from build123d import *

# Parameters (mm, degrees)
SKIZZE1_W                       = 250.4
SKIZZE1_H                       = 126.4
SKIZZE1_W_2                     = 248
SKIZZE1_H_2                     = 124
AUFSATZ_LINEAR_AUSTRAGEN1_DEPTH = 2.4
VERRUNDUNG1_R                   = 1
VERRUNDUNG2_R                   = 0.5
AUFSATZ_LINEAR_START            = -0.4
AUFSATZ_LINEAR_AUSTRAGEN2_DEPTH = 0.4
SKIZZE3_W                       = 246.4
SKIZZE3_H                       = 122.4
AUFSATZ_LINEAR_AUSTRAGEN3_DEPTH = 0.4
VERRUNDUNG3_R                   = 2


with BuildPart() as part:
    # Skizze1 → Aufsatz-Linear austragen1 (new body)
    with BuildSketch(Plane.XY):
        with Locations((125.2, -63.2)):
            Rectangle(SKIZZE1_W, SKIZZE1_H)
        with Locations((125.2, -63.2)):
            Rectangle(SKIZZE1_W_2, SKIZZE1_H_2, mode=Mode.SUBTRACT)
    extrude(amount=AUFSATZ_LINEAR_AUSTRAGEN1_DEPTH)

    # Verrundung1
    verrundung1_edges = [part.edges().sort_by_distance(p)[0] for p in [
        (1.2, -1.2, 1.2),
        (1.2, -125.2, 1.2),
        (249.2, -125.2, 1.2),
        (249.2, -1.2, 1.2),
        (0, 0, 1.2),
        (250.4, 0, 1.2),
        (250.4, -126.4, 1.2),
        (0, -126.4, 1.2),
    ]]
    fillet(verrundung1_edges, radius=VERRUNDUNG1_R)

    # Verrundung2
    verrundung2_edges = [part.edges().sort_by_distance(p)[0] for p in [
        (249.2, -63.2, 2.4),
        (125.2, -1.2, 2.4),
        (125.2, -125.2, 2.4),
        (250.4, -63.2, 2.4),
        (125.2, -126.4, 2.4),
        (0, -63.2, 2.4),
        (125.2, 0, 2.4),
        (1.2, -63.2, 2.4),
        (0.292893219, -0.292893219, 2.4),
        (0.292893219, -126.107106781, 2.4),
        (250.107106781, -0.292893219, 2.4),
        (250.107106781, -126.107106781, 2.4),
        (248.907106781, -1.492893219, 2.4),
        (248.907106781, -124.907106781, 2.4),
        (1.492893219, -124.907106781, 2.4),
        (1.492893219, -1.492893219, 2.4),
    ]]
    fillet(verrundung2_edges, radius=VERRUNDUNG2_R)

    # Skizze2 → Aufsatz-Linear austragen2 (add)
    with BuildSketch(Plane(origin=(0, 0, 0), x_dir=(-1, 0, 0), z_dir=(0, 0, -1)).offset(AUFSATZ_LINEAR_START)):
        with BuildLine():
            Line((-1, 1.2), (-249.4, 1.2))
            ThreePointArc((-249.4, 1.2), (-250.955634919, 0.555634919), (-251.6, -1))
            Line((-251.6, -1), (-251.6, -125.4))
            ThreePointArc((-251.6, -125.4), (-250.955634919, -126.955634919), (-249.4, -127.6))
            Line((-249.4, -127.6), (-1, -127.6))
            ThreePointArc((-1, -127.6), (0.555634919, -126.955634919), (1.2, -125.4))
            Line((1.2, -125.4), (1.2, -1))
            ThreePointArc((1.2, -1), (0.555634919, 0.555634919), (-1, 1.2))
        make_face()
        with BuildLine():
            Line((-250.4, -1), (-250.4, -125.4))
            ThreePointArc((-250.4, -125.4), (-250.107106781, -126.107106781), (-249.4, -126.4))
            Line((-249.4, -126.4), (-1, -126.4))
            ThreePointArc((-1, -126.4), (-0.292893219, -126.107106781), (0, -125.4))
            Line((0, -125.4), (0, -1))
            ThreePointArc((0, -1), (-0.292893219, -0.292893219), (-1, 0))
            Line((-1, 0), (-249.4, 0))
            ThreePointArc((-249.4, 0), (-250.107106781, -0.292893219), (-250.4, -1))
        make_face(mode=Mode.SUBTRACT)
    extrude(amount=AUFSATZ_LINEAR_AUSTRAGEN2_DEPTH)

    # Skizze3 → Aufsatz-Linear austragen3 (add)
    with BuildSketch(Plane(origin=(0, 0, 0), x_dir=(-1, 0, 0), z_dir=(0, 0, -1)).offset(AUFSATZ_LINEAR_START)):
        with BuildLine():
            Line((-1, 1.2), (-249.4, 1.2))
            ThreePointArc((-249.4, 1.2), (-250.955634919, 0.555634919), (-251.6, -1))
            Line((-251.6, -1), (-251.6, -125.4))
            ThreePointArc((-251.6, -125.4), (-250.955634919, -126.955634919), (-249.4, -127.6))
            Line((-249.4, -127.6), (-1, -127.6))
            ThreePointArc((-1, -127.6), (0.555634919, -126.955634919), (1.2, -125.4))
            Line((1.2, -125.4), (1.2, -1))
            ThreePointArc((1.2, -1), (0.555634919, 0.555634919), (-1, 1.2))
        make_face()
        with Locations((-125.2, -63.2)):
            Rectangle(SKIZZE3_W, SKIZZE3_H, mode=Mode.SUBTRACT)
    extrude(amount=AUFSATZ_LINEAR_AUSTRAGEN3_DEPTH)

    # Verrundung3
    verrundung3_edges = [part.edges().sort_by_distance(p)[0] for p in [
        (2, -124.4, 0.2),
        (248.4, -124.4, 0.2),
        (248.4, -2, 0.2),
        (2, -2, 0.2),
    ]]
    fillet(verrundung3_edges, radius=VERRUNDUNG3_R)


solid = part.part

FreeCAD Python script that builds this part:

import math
import FreeCAD as App
import Part
import Sketcher
from FreeCAD import Vector
Q = App.Units.Quantity


def edges_at(feature, points):
    """Names of the edges that pass closest to the given points."""
    edges = feature.Shape.Edges
    near = lambda p: min(range(len(edges)), key=lambda i: edges[i].distToShape(Part.Vertex(*p))[0])
    return sorted({f"Edge{near(p) + 1}" for p in points})


def add_polygon(sketch, points):
    """Adds a closed chain of lines whose ends are joined by coincident constraints."""
    first, n = sketch.GeometryCount, len(points)
    for a, b in zip(points, points[1:] + points[:1]):
        sketch.addGeometry(Part.LineSegment(App.Vector(*a, 0), App.Vector(*b, 0)), False)
    for i in range(n):
        sketch.addConstraint(Sketcher.Constraint("Coincident", first + i, 2, first + (i + 1) % n, 1))

doc = App.newDocument("Part")
body = doc.addObject("PartDesign::Body", "Body")

sketch1 = body.newObject("Sketcher::SketchObject", "Sketch")
sketch1.AttachmentSupport = (doc.getObject("XY_Plane"), [""])
sketch1.MapMode = "FlatFace"
add_polygon(sketch1, [(0, 0), (0, -126), (250, -126), (250, 0)])
add_polygon(sketch1, [(249, -125), (1, -125), (1, -1), (249, -1)])
sketch1.addConstraint([
    Sketcher.Constraint("Vertical", 0),
    Sketcher.Constraint("Horizontal", 1),
    Sketcher.Constraint("Vertical", 2),
    Sketcher.Constraint("Horizontal", 3),
    Sketcher.Constraint("Horizontal", 4),
    Sketcher.Constraint("Vertical", 5),
    Sketcher.Constraint("Horizontal", 6),
    Sketcher.Constraint("Vertical", 7),
    Sketcher.Constraint("Coincident", 3, 2, -1, 1),
    Sketcher.Constraint("DistanceX", 4, 2, 4, 1, Q("248 mm")),
    Sketcher.Constraint("DistanceY", 5, 1, 5, 2, Q("124 mm")),
    Sketcher.Constraint("DistanceX", 1, 1, 1, 2, Q("250.4 mm")),
    Sketcher.Constraint("DistanceY", 0, 2, 0, 1, Q("126.4 mm")),
    Sketcher.Constraint("DistanceX", -1, 1, 4, 2, Q("1.2 mm")),
    Sketcher.Constraint("DistanceY", 4, 2, -1, 1, Q("125.2 mm")),
])
pad1 = body.newObject("PartDesign::Pad", "Pad")
pad1.Profile = sketch1
pad1.Length = 2.4
doc.recompute()

fillet = body.newObject("PartDesign::Fillet", "Fillet")
fillet.Base = (pad1, edges_at(pad1, [
    (1.2, -1.2, 1.2),
    (1.2, -125.2, 1.2),
    (249.2, -125.2, 1.2),
    (249.2, -1.2, 1.2),
    (0, 0, 1.2),
    (250.4, 0, 1.2),
    (250.4, -126.4, 1.2),
    (0, -126.4, 1.2),
]))
fillet.Radius = 1
doc.recompute()

fillet2 = body.newObject("PartDesign::Fillet", "Fillet001")
fillet2.Base = (fillet, edges_at(fillet, [
    (249.2, -63.2, 2.4),
    (125.2, -1.2, 2.4),
    (125.2, -125.2, 2.4),
    (250.4, -63.2, 2.4),
    (125.2, -126.4, 2.4),
    (0, -63.2, 2.4),
    (125.2, 0, 2.4),
    (1.2, -63.2, 2.4),
    (0.293, -0.293, 2.4),
    (0.293, -126.107, 2.4),
    (250.107, -0.293, 2.4),
    (250.107, -126.107, 2.4),
    (248.907, -1.493, 2.4),
    (248.907, -124.907, 2.4),
    (1.493, -124.907, 2.4),
    (1.493, -1.493, 2.4),
]))
fillet2.Radius = 0.5

sketch2 = body.newObject("Sketcher::SketchObject", "Sketch001")
sketch2.AttachmentSupport = (doc.getObject("XY_Plane"), [""])
sketch2.MapMode = "FlatFace"
sketch2.AttachmentOffset = App.Placement(Vector(0, 0, 0.4), App.Rotation())
sketch2.addGeometry([
    Part.LineSegment(Vector(1, 1.2, 0), Vector(249.4, 1.2, 0)),
    Part.ArcOfCircle(Part.Circle(Vector(249.4, -1, 0), Vector(0, 0, 1), 2.2), math.radians(0), math.radians(90)),
    Part.LineSegment(Vector(251.6, -1, 0), Vector(251.6, -125.4, 0)),
    Part.ArcOfCircle(Part.Circle(Vector(249.4, -125.4, 0), Vector(0, 0, 1), 2.2), math.radians(-90), math.radians(0)),
    Part.LineSegment(Vector(249.4, -127.6, 0), Vector(1, -127.6, 0)),
    Part.ArcOfCircle(Part.Circle(Vector(1, -125.4, 0), Vector(0, 0, 1), 2.2), math.radians(180), math.radians(270)),
    Part.LineSegment(Vector(-1.2, -125.4, 0), Vector(-1.2, -1, 0)),
    Part.ArcOfCircle(Part.Circle(Vector(1, -1, 0), Vector(0, 0, 1), 2.2), math.radians(90), math.radians(180)),
    Part.LineSegment(Vector(250.4, -125.4, 0), Vector(250.4, -1, 0)),
    Part.ArcOfCircle(Part.Circle(Vector(249.4, -1, 0), Vector(0, 0, 1), 1), math.radians(0), math.radians(90)),
    Part.LineSegment(Vector(249.4, 0, 0), Vector(1, 0, 0)),
    Part.ArcOfCircle(Part.Circle(Vector(1, -1, 0), Vector(0, 0, 1), 1), math.radians(90), math.radians(180)),
    Part.LineSegment(Vector(0, -1, 0), Vector(0, -125.4, 0)),
    Part.ArcOfCircle(Part.Circle(Vector(1, -125.4, 0), Vector(0, 0, 1), 1), math.radians(-180), math.radians(-90)),
    Part.LineSegment(Vector(1, -126.4, 0), Vector(249.4, -126.4, 0)),
    Part.ArcOfCircle(Part.Circle(Vector(249.4, -125.4, 0), Vector(0, 0, 1), 1), math.radians(-90), math.radians(0)),
], False)
sketch2.addConstraint([
    Sketcher.Constraint("Tangent", 0, 2, 1, 2),
    Sketcher.Constraint("Tangent", 1, 1, 2, 1),
    Sketcher.Constraint("Tangent", 2, 2, 3, 2),
    Sketcher.Constraint("Tangent", 3, 1, 4, 1),
    Sketcher.Constraint("Tangent", 4, 2, 5, 2),
    Sketcher.Constraint("Tangent", 5, 1, 6, 1),
    Sketcher.Constraint("Tangent", 6, 2, 7, 2),
    Sketcher.Constraint("Tangent", 7, 1, 0, 1),
    Sketcher.Constraint("Tangent", 8, 2, 9, 1),
    Sketcher.Constraint("Tangent", 9, 2, 10, 1),
    Sketcher.Constraint("Tangent", 10, 2, 11, 1),
    Sketcher.Constraint("Tangent", 11, 2, 12, 1),
    Sketcher.Constraint("Tangent", 12, 2, 13, 1),
    Sketcher.Constraint("Tangent", 13, 2, 14, 1),
    Sketcher.Constraint("Tangent", 14, 2, 15, 1),
    Sketcher.Constraint("Tangent", 15, 2, 8, 1),
    Sketcher.Constraint("Horizontal", 0),
    Sketcher.Constraint("Vertical", 2),
    Sketcher.Constraint("Horizontal", 4),
    Sketcher.Constraint("Vertical", 6),
    Sketcher.Constraint("Vertical", 8),
    Sketcher.Constraint("Horizontal", 10),
    Sketcher.Constraint("Vertical", 12),
    Sketcher.Constraint("Horizontal", 14),
    Sketcher.Constraint("Coincident", 9, 3, 1, 3),
    Sketcher.Constraint("Coincident", 11, 3, 7, 3),
    Sketcher.Constraint("Coincident", 13, 3, 5, 3),
    Sketcher.Constraint("Equal", 1, 3),
    Sketcher.Constraint("Equal", 3, 5),
    Sketcher.Constraint("Equal", 5, 7),
    Sketcher.Constraint("Equal", 13, 15),
    Sketcher.Constraint("PointOnObject", 9, 2, -1),
    Sketcher.Constraint("PointOnObject", 11, 2, -2),
    Sketcher.Constraint("Radius", 9, Q("1 mm")),
    Sketcher.Constraint("Radius", 1, Q("2.2 mm")),
    Sketcher.Constraint("DistanceX", 0, 1, 0, 2, Q("248.4 mm")),
    Sketcher.Constraint("DistanceY", 2, 2, 2, 1, Q("124.4 mm")),
])
pad2 = body.newObject("PartDesign::Pad", "Pad001")
pad2.Profile = sketch2
pad2.Length = 0.4
pad2.Reversed = True

sketch3 = body.newObject("Sketcher::SketchObject", "Sketch002")
sketch3.AttachmentSupport = (doc.getObject("XY_Plane"), [""])
sketch3.MapMode = "FlatFace"
sketch3.AttachmentOffset = App.Placement(Vector(0, 0, 0.4), App.Rotation())
sketch3.addGeometry(Part.LineSegment(Vector(1, 1.2, 0), Vector(249.4, 1.2, 0)), False)
sketch3.addGeometry(Part.ArcOfCircle(Part.Circle(Vector(249.4, -1, 0), Vector(0, 0, 1), 2.2), math.radians(0), math.radians(90)), False)
sketch3.addGeometry(Part.LineSegment(Vector(251.6, -1, 0), Vector(251.6, -125.4, 0)), False)
sketch3.addGeometry(Part.ArcOfCircle(Part.Circle(Vector(249.4, -125.4, 0), Vector(0, 0, 1), 2.2), math.radians(-90), math.radians(0)), False)
sketch3.addGeometry(Part.LineSegment(Vector(249.4, -127.6, 0), Vector(1, -127.6, 0)), False)
sketch3.addGeometry(Part.ArcOfCircle(Part.Circle(Vector(1, -125.4, 0), Vector(0, 0, 1), 2.2), math.radians(180), math.radians(270)), False)
sketch3.addGeometry(Part.LineSegment(Vector(-1.2, -125.4, 0), Vector(-1.2, -1, 0)), False)
sketch3.addGeometry(Part.ArcOfCircle(Part.Circle(Vector(1, -1, 0), Vector(0, 0, 1), 2.2), math.radians(90), math.radians(180)), False)
add_polygon(sketch3, [(2, -124.4), (248.4, -124.4), (248.4, -2), (2, -2)])
sketch3.addConstraint([
    Sketcher.Constraint("Tangent", 0, 2, 1, 2),
    Sketcher.Constraint("Tangent", 1, 1, 2, 1),
    Sketcher.Constraint("Tangent", 2, 2, 3, 2),
    Sketcher.Constraint("Tangent", 3, 1, 4, 1),
    Sketcher.Constraint("Tangent", 4, 2, 5, 2),
    Sketcher.Constraint("Tangent", 5, 1, 6, 1),
    Sketcher.Constraint("Tangent", 6, 2, 7, 2),
    Sketcher.Constraint("Tangent", 7, 1, 0, 1),
    Sketcher.Constraint("Horizontal", 0),
    Sketcher.Constraint("Vertical", 2),
    Sketcher.Constraint("Horizontal", 4),
    Sketcher.Constraint("Vertical", 6),
    Sketcher.Constraint("Horizontal", 8),
    Sketcher.Constraint("Vertical", 9),
    Sketcher.Constraint("Horizontal", 10),
    Sketcher.Constraint("Vertical", 11),
    Sketcher.Constraint("Equal", 1, 3),
    Sketcher.Constraint("Equal", 3, 5),
    Sketcher.Constraint("Equal", 5, 7),
    Sketcher.Constraint("Radius", 1, Q("2.2 mm")),
    Sketcher.Constraint("DistanceX", 0, 1, 0, 2, Q("248.4 mm")),
    Sketcher.Constraint("DistanceX", 8, 1, 8, 2, Q("246.4 mm")),
    Sketcher.Constraint("DistanceY", 2, 2, 2, 1, Q("124.4 mm")),
    Sketcher.Constraint("DistanceY", 9, 1, 9, 2, Q("122.4 mm")),
    Sketcher.Constraint("DistanceY", 1, 3, -1, 1, Q("1 mm")),
    Sketcher.Constraint("DistanceX", -1, 1, 5, 3, Q("1 mm")),
    Sketcher.Constraint("DistanceY", 9, 2, -1, 1, Q("2 mm")),
    Sketcher.Constraint("DistanceX", -1, 1, 10, 2, Q("2 mm")),
])
pad3 = body.newObject("PartDesign::Pad", "Pad002")
pad3.Profile = sketch3
pad3.Length = 0.4
pad3.Reversed = True
doc.recompute()

fillet3 = body.newObject("PartDesign::Fillet", "Fillet002")
fillet3.Base = (pad3, edges_at(pad3, [
    (2, -124.4, 0.2),
    (248.4, -124.4, 0.2),
    (248.4, -2, 0.2),
    (2, -2, 0.2),
]))
fillet3.Radius = 2

doc.recompute()
